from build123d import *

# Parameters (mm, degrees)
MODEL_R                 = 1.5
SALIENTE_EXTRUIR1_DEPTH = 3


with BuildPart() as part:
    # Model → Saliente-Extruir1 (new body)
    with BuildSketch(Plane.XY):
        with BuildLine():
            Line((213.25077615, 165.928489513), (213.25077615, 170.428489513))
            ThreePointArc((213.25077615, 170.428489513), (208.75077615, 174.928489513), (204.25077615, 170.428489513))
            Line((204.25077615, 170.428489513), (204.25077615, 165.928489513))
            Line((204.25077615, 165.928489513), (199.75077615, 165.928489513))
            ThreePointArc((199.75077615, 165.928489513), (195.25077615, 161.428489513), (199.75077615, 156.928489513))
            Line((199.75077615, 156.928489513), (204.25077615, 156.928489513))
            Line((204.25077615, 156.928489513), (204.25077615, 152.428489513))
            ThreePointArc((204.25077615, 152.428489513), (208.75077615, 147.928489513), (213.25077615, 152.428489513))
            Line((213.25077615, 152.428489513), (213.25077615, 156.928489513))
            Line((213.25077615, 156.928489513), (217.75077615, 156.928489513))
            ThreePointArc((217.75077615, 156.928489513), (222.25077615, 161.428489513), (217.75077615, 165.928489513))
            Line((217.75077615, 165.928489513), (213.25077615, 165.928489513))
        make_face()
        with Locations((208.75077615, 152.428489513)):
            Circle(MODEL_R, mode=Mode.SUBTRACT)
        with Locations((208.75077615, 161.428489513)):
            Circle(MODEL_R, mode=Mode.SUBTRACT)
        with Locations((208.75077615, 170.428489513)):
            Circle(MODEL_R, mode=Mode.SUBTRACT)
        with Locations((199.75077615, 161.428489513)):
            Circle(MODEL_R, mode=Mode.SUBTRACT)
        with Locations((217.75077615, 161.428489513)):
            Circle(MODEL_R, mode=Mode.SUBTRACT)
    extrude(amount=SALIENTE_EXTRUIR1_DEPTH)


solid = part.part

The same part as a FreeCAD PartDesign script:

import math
import FreeCAD as App
import Part
import Sketcher
from FreeCAD import Vector
Q = App.Units.Quantity

doc = App.newDocument("Part")
body = doc.addObject("PartDesign::Body", "Body")

# Sketch on XY plane
sketch1 = body.newObject("Sketcher::SketchObject", "Sketch")
sketch1.AttachmentSupport = (doc.getObject("XY_Plane"), [""])
sketch1.MapMode = "FlatFace"
sketch1.addGeometry(Part.LineSegment(Vector(213.250776, 165.92849, 0), Vector(213.250776, 170.42849, 0)), False)
sketch1.addGeometry(Part.ArcOfCircle(Part.Circle(Vector(208.750776, 170.42849, 0), Vector(0, 0, 1), 4.5), math.radians(0), math.radians(180)), False)
sketch1.addGeometry(Part.LineSegment(Vector(204.250776, 170.42849, 0), Vector(204.250776, 165.92849, 0)), False)
sketch1.addGeometry(Part.LineSegment(Vector(204.250776, 165.92849, 0), Vector(199.750776, 165.92849, 0)), False)
sketch1.addGeometry(Part.ArcOfCircle(Part.Circle(Vector(199.750776, 161.42849, 0), Vector(0, 0, 1), 4.5), math.radians(90), math.radians(270)), False)
sketch1.addGeometry(Part.LineSegment(Vector(199.750776, 156.92849, 0), Vector(204.250776, 156.92849, 0)), False)
sketch1.addGeometry(Part.LineSegment(Vector(204.250776, 156.92849, 0), Vector(204.250776, 152.42849, 0)), False)
sketch1.addGeometry(Part.ArcOfCircle(Part.Circle(Vector(208.750776, 152.42849, 0), Vector(0, 0, 1), 4.5), math.radians(180), math.radians(360)), False)
sketch1.addGeometry(Part.LineSegment(Vector(213.250776, 152.42849, 0), Vector(213.250776, 156.92849, 0)), False)
sketch1.addGeometry(Part.LineSegment(Vector(213.250776, 156.92849, 0), Vector(217.750776, 156.92849, 0)), False)
sketch1.addGeometry(Part.ArcOfCircle(Part.Circle(Vector(217.750776, 161.42849, 0), Vector(0, 0, 1), 4.5), math.radians(-90), math.radians(90)), False)
sketch1.addGeometry(Part.LineSegment(Vector(217.750776, 165.92849, 0), Vector(213.250776, 165.92849, 0)), False)
sketch1.addGeometry(Part.Circle(Vector(208.750776, 152.42849, 0), Vector(0, 0, 1), 1.5), False)
sketch1.addGeometry(Part.Circle(Vector(199.750776, 161.42849, 0), Vector(0, 0, 1), 1.5), False)
sketch1.addGeometry(Part.Circle(Vector(208.750776, 161.42849, 0), Vector(0, 0, 1), 1.5), False)
sketch1.addGeometry(Part.Circle(Vector(217.750776, 161.42849, 0), Vector(0, 0, 1), 1.5), False)
sketch1.addGeometry(Part.Circle(Vector(208.750776, 170.42849, 0), Vector(0, 0, 1), 1.5), False)
sketch1.addConstraint(Sketcher.Constraint("Tangent", 0, 2, 1, 1))
sketch1.addConstraint(Sketcher.Constraint("Tangent", 1, 2, 2, 1))
sketch1.addConstraint(Sketcher.Constraint("Coincident", 2, 2, 3, 1))
sketch1.addConstraint(Sketcher.Constraint("Tangent", 3, 2, 4, 1))
sketch1.addConstraint(Sketcher.Constraint("Tangent", 4, 2, 5, 1))
sketch1.addConstraint(Sketcher.Constraint("Coincident", 5, 2, 6, 1))
sketch1.addConstraint(Sketcher.Constraint("Tangent", 6, 2, 7, 1))
sketch1.addConstraint(Sketcher.Constraint("Tangent", 7, 2, 8, 1))
sketch1.addConstraint(Sketcher.Constraint("Coincident", 8, 2, 9, 1))
sketch1.addConstraint(Sketcher.Constraint("Tangent", 9, 2, 10, 1))
sketch1.addConstraint(Sketcher.Constraint("Tangent", 10, 2, 11, 1))
sketch1.addConstraint(Sketcher.Constraint("Coincident", 11, 2, 0, 1))
sketch1.addConstraint(Sketcher.Constraint("Vertical", 0))
sketch1.addConstraint(Sketcher.Constraint("Vertical", 2))
sketch1.addConstraint(Sketcher.Constraint("Horizontal", 3))
sketch1.addConstraint(Sketcher.Constraint("Horizontal", 5))
sketch1.addConstraint(Sketcher.Constraint("Vertical", 6))
sketch1.addConstraint(Sketcher.Constraint("Vertical", 8))
sketch1.addConstraint(Sketcher.Constraint("Horizontal", 9))
sketch1.addConstraint(Sketcher.Constraint("Horizontal", 11))
sketch1.addConstraint(Sketcher.Constraint("Coincident", 12, 3, 7, 3))
sketch1.addConstraint(Sketcher.Constraint("Coincident", 13, 3, 4, 3))
sketch1.addConstraint(Sketcher.Constraint("Coincident", 15, 3, 10, 3))
sketch1.addConstraint(Sketcher.Constraint("Coincident", 16, 3, 1, 3))
sketch1.addConstraint(Sketcher.Constraint("Equal", 1, 4))
sketch1.addConstraint(Sketcher.Constraint("Equal", 4, 7))
sketch1.addConstraint(Sketcher.Constraint("Equal", 7, 10))
sketch1.addConstraint(Sketcher.Constraint("Equal", 12, 13))
sketch1.addConstraint(Sketcher.Constraint("Equal", 13, 14))
sketch1.addConstraint(Sketcher.Constraint("Equal", 14, 15))
sketch1.addConstraint(Sketcher.Constraint("Equal", 15, 16))
sketch1.addConstraint(Sketcher.Constraint("Horizontal", 4, 3, 10, 3))
sketch1.addConstraint(Sketcher.Constraint("Horizontal", 13, 3, 14, 3))
sketch1.addConstraint(Sketcher.Constraint("Vertical", 1, 3, 7, 3))
sketch1.addConstraint(Sketcher.Constraint("Vertical", 12, 3, 14, 3))
sketch1.addConstraint(Sketcher.Constraint("Equal", 5, 9))
sketch1.addConstraint(Sketcher.Constraint("Equal", 11, 0))
sketch1.addConstraint(Sketcher.Constraint("Equal", 2, 6))
sketch1.addConstraint(Sketcher.Constraint("Diameter", 12, Q("3 mm")))
sketch1.addConstraint(Sketcher.Constraint("Radius", 1, Q("4.5 mm")))
sketch1.addConstraint(Sketcher.Constraint("DistanceX", 3, 2, 3, 1, Q("4.5 mm")))
sketch1.addConstraint(Sketcher.Constraint("DistanceY", -1, 1, 1, 3, Q("170.42849 mm")))
sketch1.addConstraint(Sketcher.Constraint("DistanceX", -1, 1, 1, 3, Q("208.750776 mm")))
pad1 = body.newObject("PartDesign::Pad", "Pad")
pad1.Profile = sketch1
pad1.Length = 3

doc.recompute()
